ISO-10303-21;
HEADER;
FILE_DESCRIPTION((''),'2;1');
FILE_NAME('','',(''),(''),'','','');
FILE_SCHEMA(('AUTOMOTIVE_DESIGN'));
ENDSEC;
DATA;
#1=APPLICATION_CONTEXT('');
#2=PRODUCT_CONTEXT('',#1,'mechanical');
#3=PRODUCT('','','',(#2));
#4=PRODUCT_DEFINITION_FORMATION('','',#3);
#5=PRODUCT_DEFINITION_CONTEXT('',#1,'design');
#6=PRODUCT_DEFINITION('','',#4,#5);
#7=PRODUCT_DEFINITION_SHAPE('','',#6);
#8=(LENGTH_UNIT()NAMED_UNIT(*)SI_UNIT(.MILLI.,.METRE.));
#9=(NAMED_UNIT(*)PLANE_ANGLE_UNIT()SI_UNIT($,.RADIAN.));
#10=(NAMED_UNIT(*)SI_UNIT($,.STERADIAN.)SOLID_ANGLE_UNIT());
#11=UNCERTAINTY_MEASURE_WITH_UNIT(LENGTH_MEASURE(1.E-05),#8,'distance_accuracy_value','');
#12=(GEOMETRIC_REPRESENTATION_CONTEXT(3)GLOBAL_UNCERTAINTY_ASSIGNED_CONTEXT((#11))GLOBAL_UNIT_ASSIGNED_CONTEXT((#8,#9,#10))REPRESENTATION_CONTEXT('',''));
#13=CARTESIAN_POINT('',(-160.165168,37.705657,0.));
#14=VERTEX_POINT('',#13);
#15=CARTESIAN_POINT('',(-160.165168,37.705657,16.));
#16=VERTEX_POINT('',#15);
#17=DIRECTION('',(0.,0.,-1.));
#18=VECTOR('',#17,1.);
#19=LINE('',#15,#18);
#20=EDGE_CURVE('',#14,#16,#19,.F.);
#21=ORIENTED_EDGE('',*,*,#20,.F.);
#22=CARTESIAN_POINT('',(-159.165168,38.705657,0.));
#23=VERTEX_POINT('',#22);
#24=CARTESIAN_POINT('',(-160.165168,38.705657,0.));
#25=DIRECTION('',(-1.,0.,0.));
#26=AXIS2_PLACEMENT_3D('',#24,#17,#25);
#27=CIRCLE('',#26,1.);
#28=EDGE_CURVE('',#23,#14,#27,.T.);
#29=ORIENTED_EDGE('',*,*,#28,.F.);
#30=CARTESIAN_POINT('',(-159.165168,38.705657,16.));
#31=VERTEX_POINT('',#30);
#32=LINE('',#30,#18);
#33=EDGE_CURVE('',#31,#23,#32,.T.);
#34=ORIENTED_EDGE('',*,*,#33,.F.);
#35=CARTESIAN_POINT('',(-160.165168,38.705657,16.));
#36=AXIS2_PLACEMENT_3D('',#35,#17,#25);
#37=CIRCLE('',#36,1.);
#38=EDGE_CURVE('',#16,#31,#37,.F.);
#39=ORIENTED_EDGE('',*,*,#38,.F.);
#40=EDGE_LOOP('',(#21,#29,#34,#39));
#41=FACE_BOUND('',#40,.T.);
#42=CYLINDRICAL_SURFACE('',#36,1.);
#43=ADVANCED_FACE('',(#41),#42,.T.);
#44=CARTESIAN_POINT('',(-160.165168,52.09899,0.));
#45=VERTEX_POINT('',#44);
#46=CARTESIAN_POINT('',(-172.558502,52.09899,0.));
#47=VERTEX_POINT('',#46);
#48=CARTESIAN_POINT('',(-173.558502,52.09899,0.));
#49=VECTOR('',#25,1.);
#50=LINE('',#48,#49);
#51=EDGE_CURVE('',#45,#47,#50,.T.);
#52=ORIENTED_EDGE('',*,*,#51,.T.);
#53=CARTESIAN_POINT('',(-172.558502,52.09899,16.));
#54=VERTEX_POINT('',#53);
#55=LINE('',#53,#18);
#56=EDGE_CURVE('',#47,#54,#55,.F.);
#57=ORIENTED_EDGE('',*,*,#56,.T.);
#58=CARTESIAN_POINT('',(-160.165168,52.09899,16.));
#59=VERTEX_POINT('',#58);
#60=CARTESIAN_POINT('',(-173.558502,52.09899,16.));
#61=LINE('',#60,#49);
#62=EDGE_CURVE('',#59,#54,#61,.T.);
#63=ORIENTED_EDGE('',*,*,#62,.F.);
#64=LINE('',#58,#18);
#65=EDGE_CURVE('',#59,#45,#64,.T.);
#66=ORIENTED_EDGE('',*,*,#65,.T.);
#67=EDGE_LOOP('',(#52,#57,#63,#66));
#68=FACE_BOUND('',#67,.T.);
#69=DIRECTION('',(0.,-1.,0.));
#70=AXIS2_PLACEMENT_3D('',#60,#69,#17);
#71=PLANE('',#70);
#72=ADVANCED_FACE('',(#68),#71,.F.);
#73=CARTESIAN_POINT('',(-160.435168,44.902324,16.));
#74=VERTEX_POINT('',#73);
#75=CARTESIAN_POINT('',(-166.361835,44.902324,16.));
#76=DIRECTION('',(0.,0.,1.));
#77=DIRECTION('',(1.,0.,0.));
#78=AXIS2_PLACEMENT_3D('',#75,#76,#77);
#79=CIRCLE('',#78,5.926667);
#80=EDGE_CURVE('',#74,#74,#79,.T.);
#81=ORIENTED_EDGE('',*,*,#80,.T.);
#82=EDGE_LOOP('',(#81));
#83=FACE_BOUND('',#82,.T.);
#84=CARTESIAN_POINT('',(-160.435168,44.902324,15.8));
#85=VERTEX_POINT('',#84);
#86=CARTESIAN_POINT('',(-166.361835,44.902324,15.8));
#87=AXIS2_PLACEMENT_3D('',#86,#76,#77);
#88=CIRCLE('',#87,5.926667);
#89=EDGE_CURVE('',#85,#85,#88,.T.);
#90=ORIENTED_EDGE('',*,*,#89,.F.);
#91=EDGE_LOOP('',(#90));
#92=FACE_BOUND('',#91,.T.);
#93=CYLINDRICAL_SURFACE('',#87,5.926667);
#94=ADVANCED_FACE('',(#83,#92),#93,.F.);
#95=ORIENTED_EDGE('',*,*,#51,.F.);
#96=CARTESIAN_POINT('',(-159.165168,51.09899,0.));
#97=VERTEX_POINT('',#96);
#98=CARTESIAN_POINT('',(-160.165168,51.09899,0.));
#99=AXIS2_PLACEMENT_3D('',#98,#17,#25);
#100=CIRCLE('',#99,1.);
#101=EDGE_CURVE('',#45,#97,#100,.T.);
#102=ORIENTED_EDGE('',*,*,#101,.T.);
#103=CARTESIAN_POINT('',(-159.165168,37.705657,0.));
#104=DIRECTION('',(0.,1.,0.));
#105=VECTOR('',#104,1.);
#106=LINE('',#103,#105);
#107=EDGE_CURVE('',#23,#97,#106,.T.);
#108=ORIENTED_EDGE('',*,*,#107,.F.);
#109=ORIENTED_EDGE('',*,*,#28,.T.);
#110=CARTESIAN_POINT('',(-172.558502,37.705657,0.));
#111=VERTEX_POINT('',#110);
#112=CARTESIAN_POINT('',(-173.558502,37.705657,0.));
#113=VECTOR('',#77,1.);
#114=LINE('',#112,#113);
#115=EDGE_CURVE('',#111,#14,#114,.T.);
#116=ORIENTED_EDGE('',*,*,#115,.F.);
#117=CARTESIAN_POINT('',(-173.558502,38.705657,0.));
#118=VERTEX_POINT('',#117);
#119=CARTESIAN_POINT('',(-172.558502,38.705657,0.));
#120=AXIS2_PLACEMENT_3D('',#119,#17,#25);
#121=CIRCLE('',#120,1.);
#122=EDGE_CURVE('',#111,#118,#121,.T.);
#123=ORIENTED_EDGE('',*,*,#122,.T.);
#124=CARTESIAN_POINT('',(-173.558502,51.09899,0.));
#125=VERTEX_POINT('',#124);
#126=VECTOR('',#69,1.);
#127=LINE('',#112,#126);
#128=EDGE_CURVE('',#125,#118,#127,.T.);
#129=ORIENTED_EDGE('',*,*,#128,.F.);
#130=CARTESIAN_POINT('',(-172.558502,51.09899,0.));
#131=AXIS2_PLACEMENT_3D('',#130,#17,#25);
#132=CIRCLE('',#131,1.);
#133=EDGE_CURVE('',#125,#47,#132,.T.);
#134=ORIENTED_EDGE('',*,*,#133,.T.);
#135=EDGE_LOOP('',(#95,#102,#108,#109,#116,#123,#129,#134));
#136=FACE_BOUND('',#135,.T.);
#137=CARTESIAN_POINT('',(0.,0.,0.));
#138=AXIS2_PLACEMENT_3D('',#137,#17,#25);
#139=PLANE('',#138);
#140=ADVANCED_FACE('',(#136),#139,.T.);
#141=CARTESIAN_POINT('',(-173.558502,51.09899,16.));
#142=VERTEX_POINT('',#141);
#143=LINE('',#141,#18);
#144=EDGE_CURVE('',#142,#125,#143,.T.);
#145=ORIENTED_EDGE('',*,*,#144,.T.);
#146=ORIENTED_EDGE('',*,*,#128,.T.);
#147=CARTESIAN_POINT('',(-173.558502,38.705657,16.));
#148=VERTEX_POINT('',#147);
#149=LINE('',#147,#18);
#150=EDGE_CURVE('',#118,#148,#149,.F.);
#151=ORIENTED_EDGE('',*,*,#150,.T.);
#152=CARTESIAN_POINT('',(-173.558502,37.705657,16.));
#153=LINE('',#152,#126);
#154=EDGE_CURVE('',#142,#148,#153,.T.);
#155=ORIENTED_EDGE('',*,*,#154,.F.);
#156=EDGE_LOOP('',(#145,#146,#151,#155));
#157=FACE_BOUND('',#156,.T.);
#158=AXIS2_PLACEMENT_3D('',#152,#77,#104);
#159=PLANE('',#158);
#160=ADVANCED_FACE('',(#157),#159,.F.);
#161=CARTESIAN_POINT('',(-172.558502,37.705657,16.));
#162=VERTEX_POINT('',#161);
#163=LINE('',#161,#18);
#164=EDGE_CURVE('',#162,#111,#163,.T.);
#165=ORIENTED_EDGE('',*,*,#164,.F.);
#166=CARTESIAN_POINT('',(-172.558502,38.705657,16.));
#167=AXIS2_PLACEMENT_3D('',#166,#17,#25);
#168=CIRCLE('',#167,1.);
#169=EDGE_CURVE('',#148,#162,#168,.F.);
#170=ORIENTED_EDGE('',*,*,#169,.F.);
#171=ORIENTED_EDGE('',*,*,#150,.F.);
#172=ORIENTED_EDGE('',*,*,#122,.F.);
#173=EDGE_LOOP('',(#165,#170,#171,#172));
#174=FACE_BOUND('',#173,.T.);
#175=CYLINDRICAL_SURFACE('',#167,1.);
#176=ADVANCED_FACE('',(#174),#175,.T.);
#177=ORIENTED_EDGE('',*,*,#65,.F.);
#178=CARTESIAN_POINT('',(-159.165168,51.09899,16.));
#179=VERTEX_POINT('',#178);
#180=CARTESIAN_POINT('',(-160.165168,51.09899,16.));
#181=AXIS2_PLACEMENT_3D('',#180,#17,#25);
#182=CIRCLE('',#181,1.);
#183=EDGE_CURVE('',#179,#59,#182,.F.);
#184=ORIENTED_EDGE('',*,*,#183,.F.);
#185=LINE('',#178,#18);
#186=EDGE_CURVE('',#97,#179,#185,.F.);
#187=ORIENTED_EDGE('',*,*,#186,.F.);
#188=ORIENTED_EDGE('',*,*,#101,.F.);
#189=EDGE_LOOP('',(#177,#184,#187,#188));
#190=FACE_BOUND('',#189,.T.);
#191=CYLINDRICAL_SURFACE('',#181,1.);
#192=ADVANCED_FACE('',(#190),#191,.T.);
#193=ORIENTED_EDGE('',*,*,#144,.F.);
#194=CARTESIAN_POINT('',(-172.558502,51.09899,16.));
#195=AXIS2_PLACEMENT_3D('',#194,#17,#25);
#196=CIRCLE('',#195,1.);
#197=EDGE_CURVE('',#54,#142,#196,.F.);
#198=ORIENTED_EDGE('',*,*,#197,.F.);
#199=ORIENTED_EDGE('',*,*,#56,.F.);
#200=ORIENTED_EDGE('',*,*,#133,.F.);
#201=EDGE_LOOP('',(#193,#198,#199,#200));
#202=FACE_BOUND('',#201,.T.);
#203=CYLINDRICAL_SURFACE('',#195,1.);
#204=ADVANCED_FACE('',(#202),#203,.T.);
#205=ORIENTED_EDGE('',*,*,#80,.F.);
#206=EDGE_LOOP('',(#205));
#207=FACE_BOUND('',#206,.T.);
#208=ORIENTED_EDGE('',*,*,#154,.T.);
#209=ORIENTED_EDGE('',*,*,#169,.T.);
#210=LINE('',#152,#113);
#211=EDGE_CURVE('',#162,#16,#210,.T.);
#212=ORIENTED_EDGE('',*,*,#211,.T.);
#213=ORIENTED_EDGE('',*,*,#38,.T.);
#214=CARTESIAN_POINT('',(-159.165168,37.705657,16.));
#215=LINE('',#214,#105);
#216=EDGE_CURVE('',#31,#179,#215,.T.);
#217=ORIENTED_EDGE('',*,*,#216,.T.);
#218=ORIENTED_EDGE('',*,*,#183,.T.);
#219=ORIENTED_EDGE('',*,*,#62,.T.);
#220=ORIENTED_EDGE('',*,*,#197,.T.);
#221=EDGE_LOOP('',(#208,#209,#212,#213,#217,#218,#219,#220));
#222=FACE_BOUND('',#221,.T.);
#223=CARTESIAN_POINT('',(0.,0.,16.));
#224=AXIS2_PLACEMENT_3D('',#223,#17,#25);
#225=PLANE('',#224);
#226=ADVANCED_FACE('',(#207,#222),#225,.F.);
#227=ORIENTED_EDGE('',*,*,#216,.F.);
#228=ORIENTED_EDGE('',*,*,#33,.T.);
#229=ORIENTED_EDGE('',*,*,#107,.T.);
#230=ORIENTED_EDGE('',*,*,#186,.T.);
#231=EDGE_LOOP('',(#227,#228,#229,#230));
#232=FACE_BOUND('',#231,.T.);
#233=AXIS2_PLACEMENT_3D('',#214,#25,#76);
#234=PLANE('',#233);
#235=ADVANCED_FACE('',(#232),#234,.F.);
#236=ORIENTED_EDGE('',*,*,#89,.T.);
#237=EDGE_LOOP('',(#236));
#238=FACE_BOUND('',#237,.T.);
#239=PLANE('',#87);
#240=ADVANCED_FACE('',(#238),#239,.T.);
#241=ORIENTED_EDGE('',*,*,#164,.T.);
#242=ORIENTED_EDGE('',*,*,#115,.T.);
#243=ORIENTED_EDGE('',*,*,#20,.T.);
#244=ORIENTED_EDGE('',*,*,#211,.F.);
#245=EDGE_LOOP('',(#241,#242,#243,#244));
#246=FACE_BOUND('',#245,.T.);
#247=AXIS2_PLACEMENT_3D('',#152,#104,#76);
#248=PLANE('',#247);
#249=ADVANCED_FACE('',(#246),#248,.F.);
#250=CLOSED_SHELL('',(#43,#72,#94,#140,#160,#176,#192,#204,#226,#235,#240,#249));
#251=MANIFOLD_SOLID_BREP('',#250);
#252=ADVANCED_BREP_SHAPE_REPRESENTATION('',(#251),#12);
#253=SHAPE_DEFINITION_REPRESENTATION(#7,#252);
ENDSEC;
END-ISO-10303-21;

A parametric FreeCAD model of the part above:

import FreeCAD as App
import Part
import Sketcher


def edges_at(feature, points):
    """Names of the edges that pass closest to the given points."""
    edges = feature.Shape.Edges
    near = lambda p: min(range(len(edges)), key=lambda i: edges[i].distToShape(Part.Vertex(*p))[0])
    return sorted({f"Edge{near(p) + 1}" for p in points})


def add_polygon(sketch, points):
    """Adds a closed chain of lines whose ends are joined by coincident constraints."""
    first, n = sketch.GeometryCount, len(points)
    for a, b in zip(points, points[1:] + points[:1]):
        sketch.addGeometry(Part.LineSegment(App.Vector(*a, 0), App.Vector(*b, 0)), False)
    for i in range(n):
        sketch.addConstraint(Sketcher.Constraint("Coincident", first + i, 2, first + (i + 1) % n, 1))

doc = App.newDocument("Part")
body = doc.addObject("PartDesign::Body", "Body")

# Sketch on XY plane
sketch1 = body.newObject("Sketcher::SketchObject", "Sketch")
sketch1.AttachmentSupport = (doc.getObject("XY_Plane"), [""])
sketch1.MapMode = "FlatFace"
add_polygon(sketch1, [(-173.558502, 52.09899), (-173.558502, 37.705657), (-159.165168, 37.705657), (-159.165168, 52.09899)])  # lines 0-3
sketch1.addConstraint([
    Sketcher.Constraint("Vertical", 0),
    Sketcher.Constraint("Horizontal", 1),
    Sketcher.Constraint("Vertical", 2),
    Sketcher.Constraint("Horizontal", 3),
    Sketcher.Constraint("Equal", 3, 0),
    Sketcher.Constraint("DistanceX", 0, 2, -1, 1, 173.558502),
    Sketcher.Constraint("DistanceX", 1, 1, 1, 2, 14.393333),
    Sketcher.Constraint("DistanceY", -1, 1, 2, 2, 52.09899),
])
pad1 = body.newObject("PartDesign::Pad", "Pad")
pad1.Profile = sketch1
pad1.Length = 16
doc.recompute()

fillet = body.newObject("PartDesign::Fillet", "Fillet")
fillet.Base = (pad1, edges_at(pad1, [
    (-159.165, 37.706, 8),
    (-173.559, 37.706, 8),
    (-173.559, 52.099, 8),
    (-159.165, 52.099, 8),
]))
fillet.Radius = 1

# Sketch on XY plane
sketch2 = body.newObject("Sketcher::SketchObject", "Sketch001")
sketch2.AttachmentSupport = (doc.getObject("XY_Plane"), [""])
sketch2.MapMode = "FlatFace"
sketch2.AttachmentOffset = App.Placement(App.Vector(0, 0, 16), App.Rotation())
sketch2.addGeometry(Part.Circle(App.Vector(-166.361835, 44.902324, 0), App.Vector(0, 0, 1), 5.926667), False)
sketch2.addConstraint([
    Sketcher.Constraint("Diameter", 0, 11.853333),
    Sketcher.Constraint("DistanceX", 0, 3, -1, 1, 166.361835),
    Sketcher.Constraint("DistanceY", -1, 1, 0, 3, 44.902324),
])
pocket1 = body.newObject("PartDesign::Pocket", "Pocket")
pocket1.Profile = sketch2
pocket1.Length = 0.2

doc.recompute()
